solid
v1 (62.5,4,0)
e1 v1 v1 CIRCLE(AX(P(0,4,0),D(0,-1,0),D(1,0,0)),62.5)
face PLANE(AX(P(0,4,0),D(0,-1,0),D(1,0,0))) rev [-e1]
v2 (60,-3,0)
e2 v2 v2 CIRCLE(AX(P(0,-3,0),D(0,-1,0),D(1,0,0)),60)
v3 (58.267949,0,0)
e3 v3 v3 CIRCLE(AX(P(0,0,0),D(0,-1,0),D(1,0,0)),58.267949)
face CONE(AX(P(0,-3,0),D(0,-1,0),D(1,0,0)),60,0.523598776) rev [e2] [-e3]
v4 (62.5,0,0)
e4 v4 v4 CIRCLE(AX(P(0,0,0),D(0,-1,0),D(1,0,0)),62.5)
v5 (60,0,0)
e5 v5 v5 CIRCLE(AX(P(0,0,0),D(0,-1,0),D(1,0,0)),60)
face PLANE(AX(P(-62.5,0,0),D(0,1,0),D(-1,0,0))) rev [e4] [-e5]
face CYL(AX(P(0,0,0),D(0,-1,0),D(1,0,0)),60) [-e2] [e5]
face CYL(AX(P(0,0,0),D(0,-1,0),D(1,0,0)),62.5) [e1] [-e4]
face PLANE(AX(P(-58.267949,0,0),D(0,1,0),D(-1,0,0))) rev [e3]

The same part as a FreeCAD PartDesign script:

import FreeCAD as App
import Part
import Sketcher
Q = App.Units.Quantity


def add_polygon(sketch, points):
    """Adds a closed chain of lines whose ends are joined by coincident constraints."""
    first, n = sketch.GeometryCount, len(points)
    for a, b in zip(points, points[1:] + points[:1]):
        sketch.addGeometry(Part.LineSegment(App.Vector(*a, 0), App.Vector(*b, 0)), False)
    for i in range(n):
        sketch.addConstraint(Sketcher.Constraint("Coincident", first + i, 2, first + (i + 1) % n, 1))

doc = App.newDocument("Part")
body = doc.addObject("PartDesign::Body", "Body")

# Sketch on XY plane
sketch1 = body.newObject("Sketcher::SketchObject", "Sketch")
sketch1.AttachmentSupport = (doc.getObject("XY_Plane"), [""])
sketch1.MapMode = "FlatFace"
add_polygon(sketch1, [(0, 0), (0, 4), (-62.5, 4), (-62.5, 0), (-60, 0), (-60, -3), (-58.3, 0)])  # lines 0-6
sketch1.addConstraint([
    Sketcher.Constraint("Vertical", 0),
    Sketcher.Constraint("Horizontal", 1),
    Sketcher.Constraint("Vertical", 2),
    Sketcher.Constraint("Horizontal", 3),
    Sketcher.Constraint("Vertical", 4),
    Sketcher.Constraint("Horizontal", 6),
    Sketcher.Constraint("Coincident", 6, 2, -1, 1),
    Sketcher.Constraint("PointOnObject", 2, 2, -1),
    Sketcher.Constraint("DistanceY", 0, 1, 0, 2, 4.0),
    Sketcher.Constraint("DistanceY", 4, 2, 4, 1, 3.0),
    Sketcher.Constraint("Angle", 5, Q("60 deg")),
    Sketcher.Constraint("DistanceX", 1, 2, 1, 1, 62.5),
    Sketcher.Constraint("DistanceX", 3, 1, 3, 2, 2.5),
])
revolution = body.newObject("PartDesign::Revolution", "Revolution")
revolution.Profile = sketch1
revolution.ReferenceAxis = (sketch1, ["V_Axis"])
revolution.Angle = 360

doc.recompute()
